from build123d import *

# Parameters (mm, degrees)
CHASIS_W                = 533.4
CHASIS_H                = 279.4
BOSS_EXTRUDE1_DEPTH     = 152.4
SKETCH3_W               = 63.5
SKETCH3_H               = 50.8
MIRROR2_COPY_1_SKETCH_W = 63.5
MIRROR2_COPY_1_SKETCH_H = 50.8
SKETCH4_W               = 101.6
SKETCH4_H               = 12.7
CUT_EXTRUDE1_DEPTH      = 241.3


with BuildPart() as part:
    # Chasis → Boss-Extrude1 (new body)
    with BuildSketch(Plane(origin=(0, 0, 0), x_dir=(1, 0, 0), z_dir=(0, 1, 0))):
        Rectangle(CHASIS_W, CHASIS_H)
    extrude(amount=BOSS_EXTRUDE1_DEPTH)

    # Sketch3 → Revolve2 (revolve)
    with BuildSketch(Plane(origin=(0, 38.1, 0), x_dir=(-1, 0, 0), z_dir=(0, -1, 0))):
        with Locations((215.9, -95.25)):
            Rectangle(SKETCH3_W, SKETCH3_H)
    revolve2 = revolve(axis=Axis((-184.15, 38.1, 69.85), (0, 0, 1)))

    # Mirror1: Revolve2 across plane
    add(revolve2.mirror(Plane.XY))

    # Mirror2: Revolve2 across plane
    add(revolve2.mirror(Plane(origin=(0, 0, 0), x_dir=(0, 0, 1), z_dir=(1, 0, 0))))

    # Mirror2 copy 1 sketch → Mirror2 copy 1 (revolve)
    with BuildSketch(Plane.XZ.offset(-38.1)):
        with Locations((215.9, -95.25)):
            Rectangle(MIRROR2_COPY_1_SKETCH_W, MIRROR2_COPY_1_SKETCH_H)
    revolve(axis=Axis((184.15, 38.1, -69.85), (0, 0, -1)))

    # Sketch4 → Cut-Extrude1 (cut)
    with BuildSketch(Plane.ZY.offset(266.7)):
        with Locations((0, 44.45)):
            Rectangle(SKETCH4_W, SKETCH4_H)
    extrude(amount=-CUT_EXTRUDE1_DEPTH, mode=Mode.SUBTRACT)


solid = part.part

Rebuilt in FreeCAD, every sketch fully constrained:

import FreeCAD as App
import Part
import Sketcher

V = App.Vector
Q = App.Units.Quantity


def add_polygon(sketch, points):
    """Adds a closed chain of lines whose ends are joined by coincident constraints."""
    first, n = sketch.GeometryCount, len(points)
    for a, b in zip(points, points[1:] + points[:1]):
        sketch.addGeometry(Part.LineSegment(App.Vector(*a, 0), App.Vector(*b, 0)), False)
    for i in range(n):
        sketch.addConstraint(Sketcher.Constraint("Coincident", first + i, 2, first + (i + 1) % n, 1))

doc = App.newDocument("Part")
params = doc.addObject("Spreadsheet::Sheet", "Params")
for row, (alias, value) in enumerate([
    ("sketch1_width", "21 in"),
    ("sketch1_height", "11 in"),
    ("pad1_length", "6 in"),
    ("sketch2_height", "2 in"),
    ("sketch2_width", "2.5 in"),
    ("revolution_angle", "360 deg"),
    ("sketch3_height", "2 in"),
    ("sketch3_width", "2.5 in"),
    ("revolution2_angle", "360 deg"),
    ("sketch4_height", "4 in"),
    ("sketch4_width", "0.5 in"),
    ("pocket1_length", "9.5 in"),
], start=1):
    params.set(f"A{row}", alias)
    params.set(f"B{row}", "=" + value)
    params.setAlias(f"B{row}", alias)

body = doc.addObject("PartDesign::Body", "Body")

# Sketch on XZ plane
sketch1 = doc.addObject("Sketcher::SketchObject", "Sketch")
body.addObject(sketch1)
sketch1.AttachmentSupport = (doc.XZ_Plane, [""])
sketch1.MapMode = "FlatFace"
add_polygon(sketch1, [(-267, -140), (-267, 140), (267, 140), (267, -140)])  # lines 0-3
sketch1.addConstraint(Sketcher.Constraint("Vertical", 0))
sketch1.addConstraint(Sketcher.Constraint("Horizontal", 1))
sketch1.addConstraint(Sketcher.Constraint("Vertical", 2))
sketch1.addConstraint(Sketcher.Constraint("Horizontal", 3))
sketch1.addConstraint(Sketcher.Constraint("Symmetric", 0, 2, 2, 2, -1, 1))
sketch1.addConstraint(Sketcher.Constraint("DistanceX", 1, 1, 1, 2, Q("21 in")))
sketch1.addConstraint(Sketcher.Constraint("DistanceY", 0, 1, 0, 2, Q("11 in")))
sketch1.setExpression("Constraints[9]", "Params.sketch1_width")
sketch1.setExpression("Constraints[10]", "Params.sketch1_height")
pad1 = doc.addObject("PartDesign::Pad", "Pad")
body.addObject(pad1)
pad1.Profile = sketch1
pad1.setExpression("Length", "Params.pad1_length")
pad1.Reversed = True

# Sketch on XZ plane
sketch2 = doc.addObject("Sketcher::SketchObject", "Sketch001")
body.addObject(sketch2)
sketch2.AttachmentSupport = (doc.XZ_Plane, [""])
sketch2.MapMode = "FlatFace"
sketch2.AttachmentOffset = App.Placement(V(0, 0, -1.5 * 25.4), App.Rotation())
add_polygon(sketch2, [(-184, 70), (-184, 121), (-248, 121), (-248, 70)])  # lines 0-3
sketch2.addGeometry(Part.LineSegment(V(-184, 70, 0), V(-184, 121, 0)), True)  # axis
sketch2.addConstraint(Sketcher.Constraint("Vertical", 0))
sketch2.addConstraint(Sketcher.Constraint("Horizontal", 1))
sketch2.addConstraint(Sketcher.Constraint("Vertical", 2))
sketch2.addConstraint(Sketcher.Constraint("Horizontal", 3))
sketch2.addConstraint(Sketcher.Constraint("Vertical", 4))
sketch2.addConstraint(Sketcher.Constraint("Coincident", 4, 1, 3, 2))
sketch2.addConstraint(Sketcher.Constraint("Horizontal", 1, 2, 4, 2))
sketch2.addConstraint(Sketcher.Constraint("DistanceY", 0, 1, 0, 2, Q("2 in")))
sketch2.addConstraint(Sketcher.Constraint("DistanceX", 1, 2, 1, 1, Q("2.5 in")))
sketch2.addConstraint(Sketcher.Constraint("DistanceX", 0, 2, -1, 1, Q("7.25 in")))
sketch2.addConstraint(Sketcher.Constraint("DistanceY", -1, 1, 0, 2, Q("4.75 in")))
sketch2.setExpression("Constraints[11]", "Params.sketch2_height")
sketch2.setExpression("Constraints[12]", "Params.sketch2_width")
revolution = doc.addObject("PartDesign::Revolution", "Revolution")
body.addObject(revolution)
revolution.Profile = sketch2
revolution.ReferenceAxis = (sketch2, ["Axis0"])
revolution.setExpression("Angle", "Params.revolution_angle")
doc.recompute()

mirrored = doc.addObject("PartDesign::Mirrored", "Mirrored")
body.addObject(mirrored)
mirrored.Originals = [revolution]
mirrored.MirrorPlane = (doc.XY_Plane, [""])
body.Tip = mirrored
doc.recompute()

mirrored2 = doc.addObject("PartDesign::Mirrored", "Mirrored001")
body.addObject(mirrored2)
mirrored2.Originals = [revolution]
mirrored2.MirrorPlane = (doc.YZ_Plane, [""])
body.Tip = mirrored2

# Sketch on XZ plane
sketch3 = doc.addObject("Sketcher::SketchObject", "Sketch002")
body.addObject(sketch3)
sketch3.AttachmentSupport = (doc.XZ_Plane, [""])
sketch3.MapMode = "FlatFace"
sketch3.AttachmentOffset = App.Placement(V(0, 0, -1.5 * 25.4), App.Rotation())
add_polygon(sketch3, [(184, -70), (184, -121), (248, -121), (248, -70)])  # lines 0-3
sketch3.addGeometry(Part.LineSegment(V(184, -70, 0), V(184, -121, 0)), True)  # axis
sketch3.addConstraint(Sketcher.Constraint("Vertical", 0))
sketch3.addConstraint(Sketcher.Constraint("Horizontal", 1))
sketch3.addConstraint(Sketcher.Constraint("Vertical", 2))
sketch3.addConstraint(Sketcher.Constraint("Horizontal", 3))
sketch3.addConstraint(Sketcher.Constraint("Vertical", 4))
sketch3.addConstraint(Sketcher.Constraint("Coincident", 4, 1, 3, 2))
sketch3.addConstraint(Sketcher.Constraint("Horizontal", 1, 2, 4, 2))
sketch3.addConstraint(Sketcher.Constraint("DistanceY", 0, 2, 0, 1, Q("2 in")))
sketch3.addConstraint(Sketcher.Constraint("DistanceX", 1, 1, 1, 2, Q("2.5 in")))
sketch3.addConstraint(Sketcher.Constraint("DistanceX", -1, 1, 0, 2, Q("7.25 in")))
sketch3.addConstraint(Sketcher.Constraint("DistanceY", 0, 2, -1, 1, Q("4.75 in")))
sketch3.setExpression("Constraints[11]", "Params.sketch3_height")
sketch3.setExpression("Constraints[12]", "Params.sketch3_width")
revolution2 = doc.addObject("PartDesign::Revolution", "Revolution001")
body.addObject(revolution2)
revolution2.Profile = sketch3
revolution2.ReferenceAxis = (sketch3, ["Axis0"])
revolution2.setExpression("Angle", "Params.revolution2_angle")

# Sketch on YZ plane
sketch4 = doc.addObject("Sketcher::SketchObject", "Sketch003")
body.addObject(sketch4)
sketch4.AttachmentSupport = (doc.YZ_Plane, [""])
sketch4.MapMode = "FlatFace"
sketch4.AttachmentOffset = App.Placement(V(0, 0, -10.5 * 25.4), App.Rotation())
add_polygon(sketch4, [(51, -51), (38, -51), (38, 51), (51, 51)])  # lines 0-3
sketch4.addConstraint(Sketcher.Constraint("Horizontal", 0))
sketch4.addConstraint(Sketcher.Constraint("Vertical", 1))
sketch4.addConstraint(Sketcher.Constraint("Horizontal", 2))
sketch4.addConstraint(Sketcher.Constraint("Vertical", 3))
sketch4.addConstraint(Sketcher.Constraint("DistanceY", 1, 1, 1, 2, Q("4 in")))
sketch4.addConstraint(Sketcher.Constraint("DistanceX", 0, 2, 0, 1, Q("0.5 in")))
sketch4.addConstraint(Sketcher.Constraint("DistanceY", 0, 2, -1, 1, Q("2 in")))
sketch4.addConstraint(Sketcher.Constraint("DistanceX", -1, 1, 2, 2, Q("2 in")))
sketch4.setExpression("Constraints[8]", "Params.sketch4_height")
sketch4.setExpression("Constraints[9]", "Params.sketch4_width")
pocket1 = doc.addObject("PartDesign::Pocket", "Pocket")
body.addObject(pocket1)
pocket1.Profile = sketch4
pocket1.setExpression("Length", "Params.pocket1_length")
pocket1.Reversed = True

doc.recompute()
